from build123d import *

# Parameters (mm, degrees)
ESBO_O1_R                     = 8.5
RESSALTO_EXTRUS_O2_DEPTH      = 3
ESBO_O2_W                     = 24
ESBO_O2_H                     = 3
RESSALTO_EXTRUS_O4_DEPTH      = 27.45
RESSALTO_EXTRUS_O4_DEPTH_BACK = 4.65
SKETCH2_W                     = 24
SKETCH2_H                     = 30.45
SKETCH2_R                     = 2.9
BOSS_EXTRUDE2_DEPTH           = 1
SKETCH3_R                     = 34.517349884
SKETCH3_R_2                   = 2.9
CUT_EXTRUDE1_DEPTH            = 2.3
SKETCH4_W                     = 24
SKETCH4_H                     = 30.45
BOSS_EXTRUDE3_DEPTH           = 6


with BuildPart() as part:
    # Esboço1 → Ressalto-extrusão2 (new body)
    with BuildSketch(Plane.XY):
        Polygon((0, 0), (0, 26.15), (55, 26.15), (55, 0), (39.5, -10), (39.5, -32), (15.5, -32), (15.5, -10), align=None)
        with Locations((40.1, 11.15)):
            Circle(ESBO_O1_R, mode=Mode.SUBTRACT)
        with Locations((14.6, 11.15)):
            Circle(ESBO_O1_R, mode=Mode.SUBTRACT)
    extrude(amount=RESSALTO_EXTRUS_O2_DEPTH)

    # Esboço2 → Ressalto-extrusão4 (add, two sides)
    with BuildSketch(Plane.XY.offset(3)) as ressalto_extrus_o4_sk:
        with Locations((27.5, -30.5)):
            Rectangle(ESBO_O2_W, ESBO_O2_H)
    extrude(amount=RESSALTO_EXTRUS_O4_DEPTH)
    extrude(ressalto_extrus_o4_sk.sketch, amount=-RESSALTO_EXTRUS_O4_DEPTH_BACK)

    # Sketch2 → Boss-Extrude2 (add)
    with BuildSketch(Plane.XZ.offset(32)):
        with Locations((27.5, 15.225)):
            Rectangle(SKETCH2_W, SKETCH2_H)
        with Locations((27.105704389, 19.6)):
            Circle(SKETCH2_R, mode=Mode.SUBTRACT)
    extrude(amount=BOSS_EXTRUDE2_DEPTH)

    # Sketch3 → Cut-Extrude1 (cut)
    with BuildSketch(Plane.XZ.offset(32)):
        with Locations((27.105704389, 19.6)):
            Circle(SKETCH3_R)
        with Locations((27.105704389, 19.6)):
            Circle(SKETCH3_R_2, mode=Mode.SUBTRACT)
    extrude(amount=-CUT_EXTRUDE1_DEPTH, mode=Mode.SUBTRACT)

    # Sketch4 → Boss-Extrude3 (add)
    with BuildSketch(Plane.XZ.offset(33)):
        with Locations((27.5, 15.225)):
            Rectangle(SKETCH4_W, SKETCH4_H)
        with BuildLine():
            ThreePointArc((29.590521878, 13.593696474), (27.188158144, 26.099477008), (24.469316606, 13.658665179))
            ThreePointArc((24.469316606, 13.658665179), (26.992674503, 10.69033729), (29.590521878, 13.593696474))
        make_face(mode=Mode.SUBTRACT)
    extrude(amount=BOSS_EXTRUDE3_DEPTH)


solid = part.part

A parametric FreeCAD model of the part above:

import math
import FreeCAD as App
import Part
import Sketcher
Q = App.Units.Quantity


def add_polygon(sketch, points):
    """Adds a closed chain of lines whose ends are joined by coincident constraints."""
    first, n = sketch.GeometryCount, len(points)
    for a, b in zip(points, points[1:] + points[:1]):
        sketch.addGeometry(Part.LineSegment(App.Vector(*a, 0), App.Vector(*b, 0)), False)
    for i in range(n):
        sketch.addConstraint(Sketcher.Constraint("Coincident", first + i, 2, first + (i + 1) % n, 1))

doc = App.newDocument("Part")
params = doc.addObject("Spreadsheet::Sheet", "Params")
for row, (alias, value) in enumerate([
    ("sketch1_diameter", "17 mm"),
    ("sketch1_width", "24 mm"),
    ("sketch1_width2", "55 mm"),
    ("sketch1_height", "22 mm"),
    ("sketch1_height2", "26.15 mm"),
    ("pad1_length", "3 mm"),
    ("sketch2_width", "24 mm"),
    ("sketch2_height", "3 mm"),
    ("pad2_length", "27.45 mm"),
    ("pad2_length2", "4.65 mm"),
    ("sketch3_diameter", "5.8 mm"),
    ("sketch3_width", "24 mm"),
    ("sketch3_height", "30.45 mm"),
    ("pad3_length", "1 mm"),
    ("sketch4_diameter", "5.8 mm"),
    ("pocket1_length", "2.3 mm"),
    ("sketch5_radius", "6.5 mm"),
    ("sketch5_width", "24 mm"),
    ("sketch5_height", "30.45 mm"),
    ("pad4_length", "6 mm"),
], start=1):
    params.set(f"A{row}", alias)
    params.set(f"B{row}", "=" + value)
    params.setAlias(f"B{row}", alias)

body = doc.addObject("PartDesign::Body", "Body")
body.AllowCompound = True

sketch1 = doc.addObject("Sketcher::SketchObject", "Sketch")
body.addObject(sketch1)
sketch1.AttachmentSupport = (doc.XY_Plane, [""])
sketch1.MapMode = "FlatFace"
add_polygon(sketch1, [(0, 26), (0, 0), (16, -10), (16, -32), (40, -32), (40, -10), (55, 0), (55, 26)])
sketch1.addGeometry(Part.Circle(App.Vector(40, 11, 0), App.Vector(0, 0, 1), 8), False)
sketch1.addGeometry(Part.Circle(App.Vector(15, 11, 0), App.Vector(0, 0, 1), 8), False)
sketch1.addConstraint([
    Sketcher.Constraint("Vertical", 0),
    Sketcher.Constraint("Vertical", 2),
    Sketcher.Constraint("Horizontal", 3),
    Sketcher.Constraint("Vertical", 4),
    Sketcher.Constraint("Vertical", 6),
    Sketcher.Constraint("Horizontal", 7),
    Sketcher.Constraint("Coincident", 0, 2, -1, 1),
    Sketcher.Constraint("Equal", 8, 9),
    Sketcher.Constraint("PointOnObject", 5, 2, -1),
    Sketcher.Constraint("Horizontal", 8, 3, 9, 3),
    Sketcher.Constraint("Horizontal", 1, 2, 4, 2),
    Sketcher.Constraint("Equal", 1, 5),
    Sketcher.Constraint("Diameter", 8, Q("17 mm")),
    Sketcher.Constraint("DistanceX", 3, 1, 3, 2, Q("24 mm")),
    Sketcher.Constraint("DistanceX", 7, 2, 7, 1, Q("55 mm")),
    Sketcher.Constraint("DistanceY", 2, 2, 2, 1, Q("22 mm")),
    Sketcher.Constraint("DistanceY", 1, 2, -1, 1, Q("10 mm")),
    Sketcher.Constraint("DistanceY", 8, 3, 6, 2, Q("15 mm")),
    Sketcher.Constraint("DistanceY", 0, 2, 0, 1, Q("26.15 mm")),
    Sketcher.Constraint("DistanceX", -1, 1, 8, 3, Q("40.1 mm")),
    Sketcher.Constraint("DistanceX", -1, 1, 9, 3, Q("14.6 mm")),
])
sketch1.setExpression("Constraints[20]", "Params.sketch1_diameter")
sketch1.setExpression("Constraints[21]", "Params.sketch1_width")
sketch1.setExpression("Constraints[22]", "Params.sketch1_width2")
sketch1.setExpression("Constraints[23]", "Params.sketch1_height")
sketch1.setExpression("Constraints[26]", "Params.sketch1_height2")
pad1 = doc.addObject("PartDesign::Pad", "Pad")
body.addObject(pad1)
pad1.Profile = sketch1
pad1.setExpression("Length", "Params.pad1_length")

sketch2 = doc.addObject("Sketcher::SketchObject", "Sketch001")
body.addObject(sketch2)
sketch2.AttachmentSupport = (doc.XY_Plane, [""])
sketch2.MapMode = "FlatFace"
sketch2.AttachmentOffset = App.Placement(App.Vector(0, 0, 3), App.Rotation())
add_polygon(sketch2, [(15.5, -29), (15.5, -32), (39.5, -32), (39.5, -29)])
sketch2.addConstraint([
    Sketcher.Constraint("Vertical", 0),
    Sketcher.Constraint("Horizontal", 1),
    Sketcher.Constraint("Vertical", 2),
    Sketcher.Constraint("Horizontal", 3),
    Sketcher.Constraint("DistanceX", 1, 1, 1, 2, Q("24 mm")),
    Sketcher.Constraint("DistanceY", 0, 2, 0, 1, Q("3 mm")),
    Sketcher.Constraint("DistanceY", 0, 2, -1, 1, Q("32 mm")),
    Sketcher.Constraint("DistanceX", -1, 1, 0, 2, Q("15.5 mm")),
])
sketch2.setExpression("Constraints[8]", "Params.sketch2_width")
sketch2.setExpression("Constraints[9]", "Params.sketch2_height")
pad2 = doc.addObject("PartDesign::Pad", "Pad001")
body.addObject(pad2)
pad2.Profile = sketch2
pad2.Type = "TwoLengths"
pad2.setExpression("Length", "Params.pad2_length")
pad2.setExpression("Length2", "Params.pad2_length2")

sketch3 = doc.addObject("Sketcher::SketchObject", "Sketch002")
body.addObject(sketch3)
sketch3.AttachmentSupport = (doc.XZ_Plane, [""])
sketch3.MapMode = "FlatFace"
sketch3.AttachmentOffset = App.Placement(App.Vector(0, 0, 32), App.Rotation())
add_polygon(sketch3, [(15.5, 30.4), (15.5, 0), (39.5, 0), (39.5, 30.4)])
sketch3.addGeometry(Part.Circle(App.Vector(27.1, 19.6, 0), App.Vector(0, 0, 1), 2.9), False)
sketch3.addConstraint([
    Sketcher.Constraint("Vertical", 0),
    Sketcher.Constraint("Horizontal", 1),
    Sketcher.Constraint("Vertical", 2),
    Sketcher.Constraint("Horizontal", 3),
    Sketcher.Constraint("PointOnObject", 0, 2, -1),
    Sketcher.Constraint("Diameter", 4, Q("5.8 mm")),
    Sketcher.Constraint("DistanceX", 1, 1, 1, 2, Q("24 mm")),
    Sketcher.Constraint("DistanceY", 0, 2, 0, 1, Q("30.45 mm")),
    Sketcher.Constraint("DistanceY", -1, 1, 4, 3, Q("19.6 mm")),
    Sketcher.Constraint("DistanceX", -1, 1, 0, 2, Q("15.5 mm")),
    Sketcher.Constraint("DistanceX", -1, 1, 4, 3, Q("27.105704 mm")),
])
sketch3.setExpression("Constraints[9]", "Params.sketch3_diameter")
sketch3.setExpression("Constraints[10]", "Params.sketch3_width")
sketch3.setExpression("Constraints[11]", "Params.sketch3_height")
pad3 = doc.addObject("PartDesign::Pad", "Pad002")
body.addObject(pad3)
pad3.Profile = sketch3
pad3.setExpression("Length", "Params.pad3_length")

sketch4 = doc.addObject("Sketcher::SketchObject", "Sketch003")
body.addObject(sketch4)
sketch4.AttachmentSupport = (doc.XZ_Plane, [""])
sketch4.MapMode = "FlatFace"
sketch4.AttachmentOffset = App.Placement(App.Vector(0, 0, 32), App.Rotation())
sketch4.addGeometry([
    Part.Circle(App.Vector(27.1, 19.6, 0), App.Vector(0, 0, 1), 34.5),
    Part.Circle(App.Vector(27.1, 19.6, 0), App.Vector(0, 0, 1), 2.9),
], False)
sketch4.addConstraint([
    Sketcher.Constraint("Coincident", 1, 3, 0, 3),
    Sketcher.Constraint("Diameter", 1, Q("5.8 mm")),
    Sketcher.Constraint("Diameter", 0, Q("69.0347 mm")),
    Sketcher.Constraint("DistanceY", -1, 1, 0, 3, Q("19.6 mm")),
    Sketcher.Constraint("DistanceX", -1, 1, 0, 3, Q("27.105704 mm")),
])
sketch4.setExpression("Constraints[1]", "Params.sketch4_diameter")
pocket1 = doc.addObject("PartDesign::Pocket", "Pocket")
body.addObject(pocket1)
pocket1.Profile = sketch4
pocket1.setExpression("Length", "Params.pocket1_length")

sketch5 = doc.addObject("Sketcher::SketchObject", "Sketch004")
body.addObject(sketch5)
sketch5.AttachmentSupport = (doc.XZ_Plane, [""])
sketch5.MapMode = "FlatFace"
sketch5.AttachmentOffset = App.Placement(App.Vector(0, 0, 33), App.Rotation())
add_polygon(sketch5, [(15.5, 30.4), (15.5, 0), (39.5, 0), (39.5, 30.4)])
sketch5.addGeometry(Part.ArcOfCircle(Part.Circle(App.Vector(27.1, 19.6, 0), App.Vector(0, 0, 1), 6.5), math.radians(-68), math.radians(246)), False)
sketch5.addGeometry(Part.ArcOfCircle(Part.Circle(App.Vector(27, 13.3, 0), App.Vector(0, 0, 1), 2.6), math.radians(171), math.radians(367)), False)
sketch5.addConstraint([
    Sketcher.Constraint("Coincident", 4, 1, 5, 2),
    Sketcher.Constraint("Coincident", 5, 1, 4, 2),
    Sketcher.Constraint("Vertical", 0),
    Sketcher.Constraint("Horizontal", 1),
    Sketcher.Constraint("Vertical", 2),
    Sketcher.Constraint("Horizontal", 3),
    Sketcher.Constraint("PointOnObject", 0, 2, -1),
    Sketcher.Constraint("Radius", 4, Q("6.5 mm")),
    Sketcher.Constraint("DistanceX", 1, 1, 1, 2, Q("24 mm")),
    Sketcher.Constraint("DistanceY", 0, 2, 0, 1, Q("30.45 mm")),
    Sketcher.Constraint("DistanceY", -1, 1, 4, 3, Q("19.6 mm")),
    Sketcher.Constraint("DistanceX", -1, 1, 0, 2, Q("15.5 mm")),
    Sketcher.Constraint("Radius", 5, Q("2.584791 mm")),
    Sketcher.Constraint("DistanceY", -1, 1, 5, 3, Q("13.27492 mm")),
    Sketcher.Constraint("DistanceX", -1, 1, 4, 1, Q("29.590522 mm")),
    Sketcher.Constraint("DistanceX", 5, 3, 4, 3, Q("0.080241 mm")),
])
sketch5.setExpression("Constraints[11]", "Params.sketch5_radius")
sketch5.setExpression("Constraints[12]", "Params.sketch5_width")
sketch5.setExpression("Constraints[13]", "Params.sketch5_height")
pad4 = doc.addObject("PartDesign::Pad", "Pad003")
body.addObject(pad4)
pad4.Profile = sketch5
pad4.setExpression("Length", "Params.pad4_length")

doc.recompute()
